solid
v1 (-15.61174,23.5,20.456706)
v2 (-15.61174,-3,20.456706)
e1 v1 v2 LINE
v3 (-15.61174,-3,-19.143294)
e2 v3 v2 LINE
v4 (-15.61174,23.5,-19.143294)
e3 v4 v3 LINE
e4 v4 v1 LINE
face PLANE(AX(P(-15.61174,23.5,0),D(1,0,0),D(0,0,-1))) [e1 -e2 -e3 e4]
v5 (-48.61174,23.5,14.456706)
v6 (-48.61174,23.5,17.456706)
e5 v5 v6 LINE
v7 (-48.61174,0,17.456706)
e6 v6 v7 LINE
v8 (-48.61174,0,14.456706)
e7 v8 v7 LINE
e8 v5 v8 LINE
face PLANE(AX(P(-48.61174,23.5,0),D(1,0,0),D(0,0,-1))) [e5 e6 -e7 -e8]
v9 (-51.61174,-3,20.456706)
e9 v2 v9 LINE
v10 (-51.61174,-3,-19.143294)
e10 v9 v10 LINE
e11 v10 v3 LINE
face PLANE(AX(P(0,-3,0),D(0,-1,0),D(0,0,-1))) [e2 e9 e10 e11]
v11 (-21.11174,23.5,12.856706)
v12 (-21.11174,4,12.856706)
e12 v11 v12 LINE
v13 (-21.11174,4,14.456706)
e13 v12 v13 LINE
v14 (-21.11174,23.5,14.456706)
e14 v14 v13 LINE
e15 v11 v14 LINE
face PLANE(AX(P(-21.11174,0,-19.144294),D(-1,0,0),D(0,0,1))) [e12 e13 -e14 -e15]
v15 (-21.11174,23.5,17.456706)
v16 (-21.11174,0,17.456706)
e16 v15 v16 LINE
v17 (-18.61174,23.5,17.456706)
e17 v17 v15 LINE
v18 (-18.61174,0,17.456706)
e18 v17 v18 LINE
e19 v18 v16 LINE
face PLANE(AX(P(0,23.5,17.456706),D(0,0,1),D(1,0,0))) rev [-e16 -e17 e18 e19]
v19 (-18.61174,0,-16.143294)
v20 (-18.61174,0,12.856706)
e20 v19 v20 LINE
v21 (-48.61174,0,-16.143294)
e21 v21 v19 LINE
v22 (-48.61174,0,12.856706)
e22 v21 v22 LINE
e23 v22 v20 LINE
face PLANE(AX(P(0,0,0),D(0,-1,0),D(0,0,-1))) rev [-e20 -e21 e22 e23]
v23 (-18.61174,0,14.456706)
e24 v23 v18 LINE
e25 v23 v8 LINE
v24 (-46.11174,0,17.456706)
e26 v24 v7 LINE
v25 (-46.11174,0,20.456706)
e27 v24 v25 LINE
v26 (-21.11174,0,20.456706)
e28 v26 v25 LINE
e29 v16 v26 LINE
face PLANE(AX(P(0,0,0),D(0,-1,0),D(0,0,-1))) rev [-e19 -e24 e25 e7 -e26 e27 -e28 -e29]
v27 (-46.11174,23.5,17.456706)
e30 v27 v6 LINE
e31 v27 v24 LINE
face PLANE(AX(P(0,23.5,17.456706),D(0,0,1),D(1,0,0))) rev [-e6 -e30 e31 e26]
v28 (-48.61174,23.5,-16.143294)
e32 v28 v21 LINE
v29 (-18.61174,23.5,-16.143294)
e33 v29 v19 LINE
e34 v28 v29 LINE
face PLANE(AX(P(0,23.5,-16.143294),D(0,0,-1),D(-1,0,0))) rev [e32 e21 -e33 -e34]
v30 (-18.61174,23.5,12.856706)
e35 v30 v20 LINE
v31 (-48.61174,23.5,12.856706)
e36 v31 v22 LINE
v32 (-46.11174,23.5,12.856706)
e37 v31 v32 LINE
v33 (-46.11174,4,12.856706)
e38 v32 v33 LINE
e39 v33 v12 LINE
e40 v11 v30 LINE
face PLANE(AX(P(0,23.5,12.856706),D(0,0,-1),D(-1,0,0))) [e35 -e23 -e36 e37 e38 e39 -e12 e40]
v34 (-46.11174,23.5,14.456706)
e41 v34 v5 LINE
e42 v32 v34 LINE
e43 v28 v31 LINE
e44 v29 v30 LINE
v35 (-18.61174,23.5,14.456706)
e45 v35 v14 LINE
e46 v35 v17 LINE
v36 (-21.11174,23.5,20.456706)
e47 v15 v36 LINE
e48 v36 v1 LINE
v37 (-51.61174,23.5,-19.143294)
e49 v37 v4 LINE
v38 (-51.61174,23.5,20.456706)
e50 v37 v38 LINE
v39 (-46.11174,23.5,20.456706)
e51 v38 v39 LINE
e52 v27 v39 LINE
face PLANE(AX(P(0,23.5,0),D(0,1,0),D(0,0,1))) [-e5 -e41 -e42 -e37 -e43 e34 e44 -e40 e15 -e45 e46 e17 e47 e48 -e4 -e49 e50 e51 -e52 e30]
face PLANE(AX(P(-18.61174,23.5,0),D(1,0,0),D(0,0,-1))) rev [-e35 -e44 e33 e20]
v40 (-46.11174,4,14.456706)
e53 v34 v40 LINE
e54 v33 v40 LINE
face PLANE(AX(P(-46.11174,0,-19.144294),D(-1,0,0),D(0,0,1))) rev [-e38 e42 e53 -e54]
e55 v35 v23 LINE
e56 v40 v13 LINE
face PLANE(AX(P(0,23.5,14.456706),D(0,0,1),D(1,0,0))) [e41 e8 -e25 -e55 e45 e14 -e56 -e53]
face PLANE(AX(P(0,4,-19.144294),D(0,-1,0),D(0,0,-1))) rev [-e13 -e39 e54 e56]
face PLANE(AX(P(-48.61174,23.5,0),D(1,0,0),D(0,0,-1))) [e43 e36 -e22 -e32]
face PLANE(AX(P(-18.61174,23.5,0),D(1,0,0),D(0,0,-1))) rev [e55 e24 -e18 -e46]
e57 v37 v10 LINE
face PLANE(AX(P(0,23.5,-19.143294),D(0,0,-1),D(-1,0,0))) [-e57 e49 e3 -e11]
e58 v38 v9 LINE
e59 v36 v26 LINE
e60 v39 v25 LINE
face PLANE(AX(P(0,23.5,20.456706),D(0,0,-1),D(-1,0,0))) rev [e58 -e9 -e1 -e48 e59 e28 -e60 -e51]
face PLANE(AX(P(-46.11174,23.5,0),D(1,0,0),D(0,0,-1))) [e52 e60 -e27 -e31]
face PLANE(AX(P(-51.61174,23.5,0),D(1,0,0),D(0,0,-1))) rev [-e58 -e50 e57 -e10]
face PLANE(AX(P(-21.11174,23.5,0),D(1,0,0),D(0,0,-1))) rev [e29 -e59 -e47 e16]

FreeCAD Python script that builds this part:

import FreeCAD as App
import Part
import Sketcher
from FreeCAD import Vector
Q = App.Units.Quantity


def add_polygon(sketch, points):
    """Adds a closed chain of lines whose ends are joined by coincident constraints."""
    first, n = sketch.GeometryCount, len(points)
    for a, b in zip(points, points[1:] + points[:1]):
        sketch.addGeometry(Part.LineSegment(App.Vector(*a, 0), App.Vector(*b, 0)), False)
    for i in range(n):
        sketch.addConstraint(Sketcher.Constraint("Coincident", first + i, 2, first + (i + 1) % n, 1))

doc = App.newDocument("Part")
body = doc.addObject("PartDesign::Body", "Body")

# Sketch on XZ plane
sketch1 = doc.addObject("Sketcher::SketchObject", "Sketch")
body.addObject(sketch1)
sketch1.AttachmentSupport = (doc.XZ_Plane, [""])
sketch1.MapMode = "FlatFace"
add_polygon(sketch1, [(-48.61174, 17.456706), (-48.61174, 14.456706), (-18.61174, 14.456706), (-18.61174, 17.456706), (-21.11174, 17.456706), (-21.11174, 20.456706), (-15.61174, 20.456706), (-15.61174, -19.143294), (-51.61174, -19.143294), (-51.61174, 20.456706), (-46.11174, 20.456706), (-46.11174, 17.456706)])  # lines 0-11
add_polygon(sketch1, [(-48.61174, 12.856706), (-48.61174, -16.143294), (-18.61174, -16.143294), (-18.61174, 12.856706)])  # lines 12-15
sketch1.addConstraint([
    Sketcher.Constraint("Vertical", 0),
    Sketcher.Constraint("Horizontal", 1),
    Sketcher.Constraint("Vertical", 2),
    Sketcher.Constraint("Horizontal", 3),
    Sketcher.Constraint("Vertical", 4),
    Sketcher.Constraint("Horizontal", 5),
    Sketcher.Constraint("Vertical", 6),
    Sketcher.Constraint("Horizontal", 7),
    Sketcher.Constraint("Vertical", 8),
    Sketcher.Constraint("Horizontal", 9),
    Sketcher.Constraint("Vertical", 10),
    Sketcher.Constraint("Horizontal", 11),
    Sketcher.Constraint("Vertical", 12),
    Sketcher.Constraint("Horizontal", 13),
    Sketcher.Constraint("Vertical", 14),
    Sketcher.Constraint("Horizontal", 15),
    Sketcher.Constraint("Horizontal", 5, 2, 8, 2),
    Sketcher.Constraint("Horizontal", 3, 2, 10, 2),
    Sketcher.Constraint("Vertical", 11, 2, 12, 2),
    Sketcher.Constraint("Vertical", 2, 2, 13, 2),
    Sketcher.Constraint("Equal", 5, 9),
    Sketcher.Constraint("Equal", 3, 11),
    Sketcher.Constraint("Equal", 2, 4),
    Sketcher.Constraint("DistanceX", 1, 1, 1, 2, Q("30 mm")),
    Sketcher.Constraint("DistanceX", 7, 2, 7, 1, Q("36 mm")),
    Sketcher.Constraint("DistanceY", 0, 2, 0, 1, Q("3 mm")),
    Sketcher.Constraint("DistanceY", 12, 2, 12, 1, Q("29 mm")),
    Sketcher.Constraint("DistanceX", 3, 2, 3, 1, Q("2.5 mm")),
    Sketcher.Constraint("DistanceY", 6, 2, 6, 1, Q("39.6 mm")),
    Sketcher.Constraint("DistanceY", 7, 2, 12, 2, Q("3 mm")),
    Sketcher.Constraint("DistanceX", 0, 2, -1, 1, Q("48.61174 mm")),
    Sketcher.Constraint("DistanceY", -1, 1, 0, 2, Q("14.456706 mm")),
])
pad1 = doc.addObject("PartDesign::Pad", "Pad")
body.addObject(pad1)
pad1.Profile = sketch1
pad1.Length = 23.5
pad1.Reversed = True

# Sketch on XZ plane
sketch2 = doc.addObject("Sketcher::SketchObject", "Sketch001")
body.addObject(sketch2)
sketch2.AttachmentSupport = (doc.XZ_Plane, [""])
sketch2.MapMode = "FlatFace"
add_polygon(sketch2, [(-51.61174, 20.456706), (-51.61174, -19.143294), (-15.61174, -19.143294), (-15.61174, 20.456706)])  # lines 0-3
sketch2.addConstraint([
    Sketcher.Constraint("Vertical", 0),
    Sketcher.Constraint("Horizontal", 1),
    Sketcher.Constraint("Vertical", 2),
    Sketcher.Constraint("Horizontal", 3),
    Sketcher.Constraint("DistanceX", 1, 1, 1, 2, Q("36 mm")),
    Sketcher.Constraint("DistanceY", 0, 2, 0, 1, Q("39.6 mm")),
    Sketcher.Constraint("DistanceX", 0, 2, -1, 1, Q("51.61174 mm")),
    Sketcher.Constraint("DistanceY", 0, 2, -1, 1, Q("19.143294 mm")),
])
pad2 = doc.addObject("PartDesign::Pad", "Pad001")
body.addObject(pad2)
pad2.Profile = sketch2
pad2.Length = 3

# Sketch on XY plane
sketch3 = doc.addObject("Sketcher::SketchObject", "Sketch002")
body.addObject(sketch3)
sketch3.AttachmentSupport = (doc.XY_Plane, [""])
sketch3.MapMode = "FlatFace"
sketch3.AttachmentOffset = App.Placement(Vector(0, 0, 14.456706), App.Rotation())
add_polygon(sketch3, [(-46.11174, 23.5), (-46.11174, 4), (-21.11174, 4), (-21.11174, 23.5)])  # lines 0-3
sketch3.addConstraint([
    Sketcher.Constraint("Vertical", 0),
    Sketcher.Constraint("Horizontal", 1),
    Sketcher.Constraint("Vertical", 2),
    Sketcher.Constraint("Horizontal", 3),
    Sketcher.Constraint("DistanceX", 1, 1, 1, 2, Q("25 mm")),
    Sketcher.Constraint("DistanceY", 0, 2, 0, 1, Q("19.5 mm")),
    Sketcher.Constraint("DistanceY", -1, 1, 0, 2, Q("4 mm")),
    Sketcher.Constraint("DistanceX", 0, 2, -1, 1, Q("46.11174 mm")),
])
pocket1 = doc.addObject("PartDesign::Pocket", "Pocket")
body.addObject(pocket1)
pocket1.Profile = sketch3
pocket1.Type = "UpToFirst"

doc.recompute()
